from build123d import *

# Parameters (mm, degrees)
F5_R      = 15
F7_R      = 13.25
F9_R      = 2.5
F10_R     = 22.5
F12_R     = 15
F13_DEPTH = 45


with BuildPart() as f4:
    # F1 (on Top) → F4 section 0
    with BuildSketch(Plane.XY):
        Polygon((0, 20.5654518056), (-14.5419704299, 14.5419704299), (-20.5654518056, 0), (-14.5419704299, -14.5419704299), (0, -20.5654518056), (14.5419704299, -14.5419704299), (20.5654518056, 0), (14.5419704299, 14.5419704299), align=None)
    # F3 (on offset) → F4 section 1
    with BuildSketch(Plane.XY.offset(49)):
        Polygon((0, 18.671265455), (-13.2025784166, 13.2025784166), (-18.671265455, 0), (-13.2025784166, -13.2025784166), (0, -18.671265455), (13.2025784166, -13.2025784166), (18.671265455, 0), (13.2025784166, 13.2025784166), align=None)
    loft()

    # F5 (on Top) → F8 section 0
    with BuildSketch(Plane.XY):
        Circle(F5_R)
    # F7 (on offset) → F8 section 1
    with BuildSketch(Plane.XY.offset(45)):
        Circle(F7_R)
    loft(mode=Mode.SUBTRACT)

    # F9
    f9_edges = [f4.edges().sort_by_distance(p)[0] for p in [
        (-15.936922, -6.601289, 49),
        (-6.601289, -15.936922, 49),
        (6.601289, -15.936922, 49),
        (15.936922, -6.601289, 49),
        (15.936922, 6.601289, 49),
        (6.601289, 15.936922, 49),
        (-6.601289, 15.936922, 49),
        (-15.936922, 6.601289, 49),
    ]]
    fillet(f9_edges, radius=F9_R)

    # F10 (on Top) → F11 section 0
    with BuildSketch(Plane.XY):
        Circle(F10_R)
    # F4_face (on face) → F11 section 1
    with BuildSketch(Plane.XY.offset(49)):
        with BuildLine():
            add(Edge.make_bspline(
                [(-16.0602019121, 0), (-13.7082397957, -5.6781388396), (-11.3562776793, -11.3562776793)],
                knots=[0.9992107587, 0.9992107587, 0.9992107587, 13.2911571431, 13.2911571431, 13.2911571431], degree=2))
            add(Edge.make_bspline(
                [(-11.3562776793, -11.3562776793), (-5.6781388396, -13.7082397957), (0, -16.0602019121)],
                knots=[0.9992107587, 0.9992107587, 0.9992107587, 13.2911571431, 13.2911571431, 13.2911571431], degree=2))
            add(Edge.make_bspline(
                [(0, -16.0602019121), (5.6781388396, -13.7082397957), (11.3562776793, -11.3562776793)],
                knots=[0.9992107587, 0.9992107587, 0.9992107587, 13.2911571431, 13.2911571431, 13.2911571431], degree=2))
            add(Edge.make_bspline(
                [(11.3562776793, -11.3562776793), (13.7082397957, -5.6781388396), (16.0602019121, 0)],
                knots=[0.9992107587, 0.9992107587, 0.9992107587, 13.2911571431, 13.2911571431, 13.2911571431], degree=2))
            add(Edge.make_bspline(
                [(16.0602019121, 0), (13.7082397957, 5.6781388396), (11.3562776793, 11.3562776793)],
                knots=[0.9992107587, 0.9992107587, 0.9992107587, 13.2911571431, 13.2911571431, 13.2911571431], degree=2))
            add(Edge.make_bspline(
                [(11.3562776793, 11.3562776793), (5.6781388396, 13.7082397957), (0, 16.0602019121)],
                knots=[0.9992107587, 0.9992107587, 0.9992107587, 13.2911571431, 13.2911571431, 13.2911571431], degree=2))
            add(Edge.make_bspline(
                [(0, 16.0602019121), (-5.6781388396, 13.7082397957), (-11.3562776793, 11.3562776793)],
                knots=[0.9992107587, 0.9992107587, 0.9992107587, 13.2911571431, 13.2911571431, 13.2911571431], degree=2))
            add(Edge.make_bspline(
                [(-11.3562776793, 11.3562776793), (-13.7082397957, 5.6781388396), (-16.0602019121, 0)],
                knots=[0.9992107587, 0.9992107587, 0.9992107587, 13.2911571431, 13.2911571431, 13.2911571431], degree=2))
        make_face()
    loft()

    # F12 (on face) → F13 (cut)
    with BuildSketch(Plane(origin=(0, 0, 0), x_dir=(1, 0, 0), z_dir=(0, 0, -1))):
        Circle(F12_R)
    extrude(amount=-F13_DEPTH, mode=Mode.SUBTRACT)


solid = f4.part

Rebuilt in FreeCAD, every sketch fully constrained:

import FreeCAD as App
import Part
import Sketcher

V = App.Vector
Q = App.Units.Quantity


def edges_at(feature, points):
    """Names of the edges that pass closest to the given points."""
    edges = feature.Shape.Edges
    near = lambda p: min(range(len(edges)), key=lambda i: edges[i].distToShape(Part.Vertex(*p))[0])
    return sorted({f"Edge{near(p) + 1}" for p in points})


def add_polygon(sketch, points):
    """Adds a closed chain of lines whose ends are joined by coincident constraints."""
    first, n = sketch.GeometryCount, len(points)
    for a, b in zip(points, points[1:] + points[:1]):
        sketch.addGeometry(Part.LineSegment(App.Vector(*a, 0), App.Vector(*b, 0)), False)
    for i in range(n):
        sketch.addConstraint(Sketcher.Constraint("Coincident", first + i, 2, first + (i + 1) % n, 1))

doc = App.newDocument("Part")
params = doc.addObject("Spreadsheet::Sheet", "Params")
for row, (alias, value) in enumerate([
    ("sketch3_diameter", "30 mm"),
    ("sketch4_diameter", "26.5 mm"),
    ("fillet_radius", "2.5 mm"),
    ("sketch5_diameter", "45 mm"),
    ("sketch7_diameter", "30 mm"),
    ("pocket1_length", "45 mm"),
], start=1):
    params.set(f"A{row}", alias)
    params.set(f"B{row}", "=" + value)
    params.setAlias(f"B{row}", alias)

body = doc.addObject("PartDesign::Body", "Body")

# Sketch on XY plane
sketch1 = body.newObject("Sketcher::SketchObject", "Sketch")
sketch1.AttachmentSupport = (doc.getObject("XY_Plane"), [""])
sketch1.MapMode = "FlatFace"
add_polygon(sketch1, [(0, 21), (-15, 15), (-21, 0), (-15, -15), (0, -21), (15, -15), (21, 0), (15, 15)])  # lines 0-7
sketch1.addConstraint([
    Sketcher.Constraint("Symmetric", 0, 2, 4, 2, -1, 1),
    Sketcher.Constraint("Symmetric", 1, 2, 5, 2, -1, 1),
    Sketcher.Constraint("Symmetric", 2, 2, 6, 2, -1, 1),
    Sketcher.Constraint("Symmetric", 3, 2, 7, 2, -1, 1),
    Sketcher.Constraint("Symmetric", 2, 2, 4, 2, -2),
    Sketcher.Constraint("PointOnObject", 1, 2, -1),
    Sketcher.Constraint("PointOnObject", 3, 2, -2),
    Sketcher.Constraint("Perpendicular", 0, 2),
    Sketcher.Constraint("Equal", 0, 1),
    Sketcher.Constraint("Angle", 0, Q("-157.5 deg")),
    Sketcher.Constraint("DistanceX", 0, 2, -1, 1, Q("14.54197 mm")),
])

# Sketch on XY plane
sketch2 = body.newObject("Sketcher::SketchObject", "Sketch001")
sketch2.AttachmentSupport = (doc.getObject("XY_Plane"), [""])
sketch2.MapMode = "FlatFace"
sketch2.AttachmentOffset = App.Placement(V(0, 0, 49), App.Rotation())
add_polygon(sketch2, [(0, 19), (-13, 13), (-19, 0), (-13, -13), (0, -19), (13, -13), (19, 0), (13, 13)])  # lines 0-7
sketch2.addConstraint([
    Sketcher.Constraint("Symmetric", 0, 2, 4, 2, -1, 1),
    Sketcher.Constraint("Symmetric", 1, 2, 5, 2, -1, 1),
    Sketcher.Constraint("Symmetric", 2, 2, 6, 2, -1, 1),
    Sketcher.Constraint("Symmetric", 3, 2, 7, 2, -1, 1),
    Sketcher.Constraint("Symmetric", 2, 2, 4, 2, -2),
    Sketcher.Constraint("PointOnObject", 1, 2, -1),
    Sketcher.Constraint("PointOnObject", 3, 2, -2),
    Sketcher.Constraint("Perpendicular", 0, 2),
    Sketcher.Constraint("Equal", 0, 1),
    Sketcher.Constraint("Angle", 0, Q("-157.5 deg")),
    Sketcher.Constraint("DistanceX", 0, 2, -1, 1, Q("13.202578 mm")),
])

additiveloft = body.newObject("PartDesign::AdditiveLoft", "AdditiveLoft")
additiveloft.Profile = sketch1
additiveloft.Sections = [sketch2]

# Sketch on XY plane
sketch3 = body.newObject("Sketcher::SketchObject", "Sketch002")
sketch3.AttachmentSupport = (doc.getObject("XY_Plane"), [""])
sketch3.MapMode = "FlatFace"
sketch3.addGeometry(Part.Circle(V(0, 0, 0), V(0, 0, 1), 15), False)
sketch3.addConstraint([
    Sketcher.Constraint("Coincident", 0, 3, -1, 1),
    Sketcher.Constraint("Diameter", 0, Q("30 mm")),
])
sketch3.setExpression("Constraints[1]", "Params.sketch3_diameter")

# Sketch on XY plane
sketch4 = body.newObject("Sketcher::SketchObject", "Sketch003")
sketch4.AttachmentSupport = (doc.getObject("XY_Plane"), [""])
sketch4.MapMode = "FlatFace"
sketch4.AttachmentOffset = App.Placement(V(0, 0, 45), App.Rotation())
sketch4.addGeometry(Part.Circle(V(0, 0, 0), V(0, 0, 1), 13), False)
sketch4.addConstraint([
    Sketcher.Constraint("Coincident", 0, 3, -1, 1),
    Sketcher.Constraint("Diameter", 0, Q("26.5 mm")),
])
sketch4.setExpression("Constraints[1]", "Params.sketch4_diameter")

subtractiveloft = body.newObject("PartDesign::SubtractiveLoft", "SubtractiveLoft")
subtractiveloft.Profile = sketch3
subtractiveloft.Sections = [sketch4]
doc.recompute()

fillet = body.newObject("PartDesign::Fillet", "Fillet")
fillet.Base = (subtractiveloft, edges_at(subtractiveloft, [
    (-15.937, -6.601, 49),
    (-6.601, -15.937, 49),
    (6.601, -15.937, 49),
    (15.937, -6.601, 49),
    (15.937, 6.601, 49),
    (6.601, 15.937, 49),
    (-6.601, 15.937, 49),
    (-15.937, 6.601, 49),
]))
fillet.setExpression("Radius", "Params.fillet_radius")

# Sketch on XY plane
sketch5 = body.newObject("Sketcher::SketchObject", "Sketch004")
sketch5.AttachmentSupport = (doc.getObject("XY_Plane"), [""])
sketch5.MapMode = "FlatFace"
sketch5.addGeometry(Part.Circle(V(0, 0, 0), V(0, 0, 1), 22), False)
sketch5.addConstraint([
    Sketcher.Constraint("Coincident", 0, 3, -1, 1),
    Sketcher.Constraint("Diameter", 0, Q("45 mm")),
])
sketch5.setExpression("Constraints[1]", "Params.sketch5_diameter")

# Sketch on XY plane
sketch6 = body.newObject("Sketcher::SketchObject", "Sketch005")
sketch6.AttachmentSupport = (doc.getObject("XY_Plane"), [""])
sketch6.MapMode = "FlatFace"
sketch6.AttachmentOffset = App.Placement(V(0, 0, 49), App.Rotation())
sketch6.addGeometry([
    Part.BSplineCurve([V(-16.060202, 0, 0), V(-13.70824, -5.678139, 0), V(-11.356278, -11.356278, 0)], [3, 3], [0.999210759, 13.291157143], False, 2, [1, 1, 1], False),  # 0
    Part.BSplineCurve([V(-11.356278, -11.356278, 0), V(-5.678139, -13.70824, 0), V(0, -16.060202, 0)], [3, 3], [0.999210759, 13.291157143], False, 2, [1, 1, 1], False),  # 1
    Part.BSplineCurve([V(0, -16.060202, 0), V(5.678139, -13.70824, 0), V(11.356278, -11.356278, 0)], [3, 3], [0.999210759, 13.291157143], False, 2, [1, 1, 1], False),  # 2
    Part.BSplineCurve([V(11.356278, -11.356278, 0), V(13.70824, -5.678139, 0), V(16.060202, 0, 0)], [3, 3], [0.999210759, 13.291157143], False, 2, [1, 1, 1], False),  # 3
    Part.BSplineCurve([V(16.060202, 0, 0), V(13.70824, 5.678139, 0), V(11.356278, 11.356278, 0)], [3, 3], [0.999210759, 13.291157143], False, 2, [1, 1, 1], False),  # 4
    Part.BSplineCurve([V(11.356278, 11.356278, 0), V(5.678139, 13.70824, 0), V(0, 16.060202, 0)], [3, 3], [0.999210759, 13.291157143], False, 2, [1, 1, 1], False),  # 5
    Part.BSplineCurve([V(0, 16.060202, 0), V(-5.678139, 13.70824, 0), V(-11.356278, 11.356278, 0)], [3, 3], [0.999210759, 13.291157143], False, 2, [1, 1, 1], False),  # 6
    Part.BSplineCurve([V(-11.356278, 11.356278, 0), V(-13.70824, 5.678139, 0), V(-16.060202, 0, 0)], [3, 3], [0.999210759, 13.291157143], False, 2, [1, 1, 1], False),  # 7
], False)
sketch6.addConstraint([
    Sketcher.Constraint("Block", 0),
    Sketcher.Constraint("Block", 1),
    Sketcher.Constraint("Block", 2),
    Sketcher.Constraint("Block", 3),
    Sketcher.Constraint("Block", 4),
    Sketcher.Constraint("Block", 5),
    Sketcher.Constraint("Block", 6),
    Sketcher.Constraint("Block", 7),
])

additiveloft2 = body.newObject("PartDesign::AdditiveLoft", "AdditiveLoft001")
additiveloft2.Profile = sketch5
additiveloft2.Sections = [sketch6]

# Sketch on XY plane
sketch7 = body.newObject("Sketcher::SketchObject", "Sketch006")
sketch7.AttachmentSupport = (doc.getObject("XY_Plane"), [""])
sketch7.MapMode = "FlatFace"
sketch7.addGeometry(Part.Circle(V(0, 0, 0), V(0, 0, 1), 15), False)
sketch7.addConstraint([
    Sketcher.Constraint("Coincident", 0, 3, -1, 1),
    Sketcher.Constraint("Diameter", 0, Q("30 mm")),
])
sketch7.setExpression("Constraints[1]", "Params.sketch7_diameter")
pocket1 = body.newObject("PartDesign::Pocket", "Pocket")
pocket1.Profile = sketch7
pocket1.setExpression("Length", "Params.pocket1_length")
pocket1.Reversed = True

doc.recompute()
